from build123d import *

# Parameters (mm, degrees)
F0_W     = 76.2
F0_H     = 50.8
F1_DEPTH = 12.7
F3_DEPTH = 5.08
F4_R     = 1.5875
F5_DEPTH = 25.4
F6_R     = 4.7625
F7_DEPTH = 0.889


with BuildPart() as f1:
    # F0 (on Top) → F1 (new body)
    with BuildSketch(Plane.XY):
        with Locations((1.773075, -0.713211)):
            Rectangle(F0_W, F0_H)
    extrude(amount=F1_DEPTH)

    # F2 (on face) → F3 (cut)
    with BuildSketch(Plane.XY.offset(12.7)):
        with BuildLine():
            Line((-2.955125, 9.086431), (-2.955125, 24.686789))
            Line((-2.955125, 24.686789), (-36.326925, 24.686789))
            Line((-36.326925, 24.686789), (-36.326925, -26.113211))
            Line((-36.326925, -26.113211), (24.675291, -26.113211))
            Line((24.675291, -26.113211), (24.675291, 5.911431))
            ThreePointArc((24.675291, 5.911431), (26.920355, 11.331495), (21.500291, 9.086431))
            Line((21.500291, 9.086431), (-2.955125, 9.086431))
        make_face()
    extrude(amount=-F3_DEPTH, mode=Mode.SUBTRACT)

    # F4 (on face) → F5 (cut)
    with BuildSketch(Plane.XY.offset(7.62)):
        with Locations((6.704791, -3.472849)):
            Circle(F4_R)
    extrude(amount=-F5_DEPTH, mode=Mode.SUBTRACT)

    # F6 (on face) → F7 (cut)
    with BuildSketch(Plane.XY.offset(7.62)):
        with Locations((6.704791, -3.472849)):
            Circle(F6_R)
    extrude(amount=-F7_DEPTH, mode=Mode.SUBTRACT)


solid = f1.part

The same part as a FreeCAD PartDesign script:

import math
import FreeCAD as App
import Part
import Sketcher
Q = App.Units.Quantity

doc = App.newDocument("Part")
body = doc.addObject("PartDesign::Body", "Body")

sketch1 = body.newObject("Sketcher::SketchObject", "Sketch")
sketch1.AttachmentSupport = (doc.getObject("XY_Plane"), [""])
sketch1.MapMode = "FlatFace"
sketch1.addGeometry(Part.LineSegment(App.Vector(-36, 25, 0), App.Vector(-36, -26, 0)), False)
sketch1.addGeometry(Part.LineSegment(App.Vector(-36, -26, 0), App.Vector(40, -26, 0)), False)
sketch1.addGeometry(Part.LineSegment(App.Vector(40, -26, 0), App.Vector(40, 25, 0)), False)
sketch1.addGeometry(Part.LineSegment(App.Vector(40, 25, 0), App.Vector(-36, 25, 0)), False)
sketch1.addConstraint(Sketcher.Constraint("Coincident", 0, 2, 1, 1))
sketch1.addConstraint(Sketcher.Constraint("Coincident", 1, 2, 2, 1))
sketch1.addConstraint(Sketcher.Constraint("Coincident", 2, 2, 3, 1))
sketch1.addConstraint(Sketcher.Constraint("Coincident", 3, 2, 0, 1))
sketch1.addConstraint(Sketcher.Constraint("Vertical", 0))
sketch1.addConstraint(Sketcher.Constraint("Horizontal", 1))
sketch1.addConstraint(Sketcher.Constraint("Vertical", 2))
sketch1.addConstraint(Sketcher.Constraint("Horizontal", 3))
sketch1.addConstraint(Sketcher.Constraint("DistanceX", 1, 1, 1, 2, Q("3 in")))
sketch1.addConstraint(Sketcher.Constraint("DistanceY", 0, 2, 0, 1, Q("2 in")))
sketch1.addConstraint(Sketcher.Constraint("DistanceY", 0, 2, -1, 1, Q("26.113211 mm")))
sketch1.addConstraint(Sketcher.Constraint("DistanceX", 0, 2, -1, 1, Q("36.326925 mm")))
pad1 = body.newObject("PartDesign::Pad", "Pad")
pad1.Profile = sketch1
pad1.Length = Q("0.5 in")

sketch2 = body.newObject("Sketcher::SketchObject", "Sketch001")
sketch2.AttachmentSupport = (doc.getObject("XY_Plane"), [""])
sketch2.MapMode = "FlatFace"
sketch2.AttachmentOffset = App.Placement(App.Vector(0, 0, 0.5 * 25.4), App.Rotation())
sketch2.addGeometry(Part.LineSegment(App.Vector(-3, 9.1, 0), App.Vector(-3, 24.7, 0)), False)
sketch2.addGeometry(Part.LineSegment(App.Vector(-3, 24.7, 0), App.Vector(-36.3, 24.7, 0)), False)
sketch2.addGeometry(Part.LineSegment(App.Vector(-36.3, 24.7, 0), App.Vector(-36.3, -26.1, 0)), False)
sketch2.addGeometry(Part.LineSegment(App.Vector(-36.3, -26.1, 0), App.Vector(24.7, -26.1, 0)), False)
sketch2.addGeometry(Part.LineSegment(App.Vector(24.7, -26.1, 0), App.Vector(24.7, 5.9, 0)), False)
sketch2.addGeometry(Part.ArcOfCircle(Part.Circle(App.Vector(24.7, 9.1, 0), App.Vector(0, 0, 1), 3.2), math.radians(-90), math.radians(180)), False)
sketch2.addGeometry(Part.LineSegment(App.Vector(21.5, 9.1, 0), App.Vector(-3, 9.1, 0)), False)
sketch2.addConstraint(Sketcher.Constraint("Coincident", 0, 2, 1, 1))
sketch2.addConstraint(Sketcher.Constraint("Coincident", 1, 2, 2, 1))
sketch2.addConstraint(Sketcher.Constraint("Coincident", 2, 2, 3, 1))
sketch2.addConstraint(Sketcher.Constraint("Coincident", 3, 2, 4, 1))
sketch2.addConstraint(Sketcher.Constraint("Coincident", 4, 2, 5, 1))
sketch2.addConstraint(Sketcher.Constraint("Coincident", 5, 2, 6, 1))
sketch2.addConstraint(Sketcher.Constraint("Coincident", 6, 2, 0, 1))
sketch2.addConstraint(Sketcher.Constraint("Vertical", 0))
sketch2.addConstraint(Sketcher.Constraint("Horizontal", 1))
sketch2.addConstraint(Sketcher.Constraint("Vertical", 2))
sketch2.addConstraint(Sketcher.Constraint("Horizontal", 3))
sketch2.addConstraint(Sketcher.Constraint("Vertical", 4))
sketch2.addConstraint(Sketcher.Constraint("Horizontal", 6))
sketch2.addConstraint(Sketcher.Constraint("Vertical", 5, 3, 3, 2))
sketch2.addConstraint(Sketcher.Constraint("DistanceY", 2, 2, 2, 1, Q("2 in")))
sketch2.addConstraint(Sketcher.Constraint("Radius", 5, Q("0.125 in")))
sketch2.addConstraint(Sketcher.Constraint("DistanceY", 4, 2, 5, 2, Q("0.125 in")))
sketch2.addConstraint(Sketcher.Constraint("DistanceX", 1, 2, 1, 1, Q("33.3718 mm")))
sketch2.addConstraint(Sketcher.Constraint("DistanceY", 0, 1, 0, 2, Q("15.600358 mm")))
sketch2.addConstraint(Sketcher.Constraint("DistanceX", 3, 1, 3, 2, Q("61.002216 mm")))
sketch2.addConstraint(Sketcher.Constraint("DistanceX", -1, 1, 5, 3, Q("24.675291 mm")))
sketch2.addConstraint(Sketcher.Constraint("DistanceY", -1, 1, 5, 3, Q("9.086431 mm")))
pocket1 = body.newObject("PartDesign::Pocket", "Pocket")
pocket1.Profile = sketch2
pocket1.Length = Q("0.2 in")

sketch3 = body.newObject("Sketcher::SketchObject", "Sketch002")
sketch3.AttachmentSupport = (doc.getObject("XY_Plane"), [""])
sketch3.MapMode = "FlatFace"
sketch3.AttachmentOffset = App.Placement(App.Vector(0, 0, 0.3 * 25.4), App.Rotation())
sketch3.addGeometry(Part.Circle(App.Vector(6.7, -3.5, 0), App.Vector(0, 0, 1), 1.6), False)
sketch3.addConstraint(Sketcher.Constraint("Diameter", 0, Q("0.125 in")))
sketch3.addConstraint(Sketcher.Constraint("DistanceX", -1, 1, 0, 3, Q("6.704791 mm")))
sketch3.addConstraint(Sketcher.Constraint("DistanceY", 0, 3, -1, 1, Q("3.472849 mm")))
pocket2 = body.newObject("PartDesign::Pocket", "Pocket001")
pocket2.Profile = sketch3
pocket2.Length = Q("1 in")

sketch4 = body.newObject("Sketcher::SketchObject", "Sketch003")
sketch4.AttachmentSupport = (doc.getObject("XY_Plane"), [""])
sketch4.MapMode = "FlatFace"
sketch4.AttachmentOffset = App.Placement(App.Vector(0, 0, 0.3 * 25.4), App.Rotation())
sketch4.addGeometry(Part.Circle(App.Vector(6.7, -3.5, 0), App.Vector(0, 0, 1), 4.8), False)
sketch4.addConstraint(Sketcher.Constraint("Diameter", 0, Q("0.375 in")))
sketch4.addConstraint(Sketcher.Constraint("DistanceX", -1, 1, 0, 3, Q("6.704791 mm")))
sketch4.addConstraint(Sketcher.Constraint("DistanceY", 0, 3, -1, 1, Q("3.472849 mm")))
pocket3 = body.newObject("PartDesign::Pocket", "Pocket002")
pocket3.Profile = sketch4
pocket3.Length = Q("0.035 in")

doc.recompute()
